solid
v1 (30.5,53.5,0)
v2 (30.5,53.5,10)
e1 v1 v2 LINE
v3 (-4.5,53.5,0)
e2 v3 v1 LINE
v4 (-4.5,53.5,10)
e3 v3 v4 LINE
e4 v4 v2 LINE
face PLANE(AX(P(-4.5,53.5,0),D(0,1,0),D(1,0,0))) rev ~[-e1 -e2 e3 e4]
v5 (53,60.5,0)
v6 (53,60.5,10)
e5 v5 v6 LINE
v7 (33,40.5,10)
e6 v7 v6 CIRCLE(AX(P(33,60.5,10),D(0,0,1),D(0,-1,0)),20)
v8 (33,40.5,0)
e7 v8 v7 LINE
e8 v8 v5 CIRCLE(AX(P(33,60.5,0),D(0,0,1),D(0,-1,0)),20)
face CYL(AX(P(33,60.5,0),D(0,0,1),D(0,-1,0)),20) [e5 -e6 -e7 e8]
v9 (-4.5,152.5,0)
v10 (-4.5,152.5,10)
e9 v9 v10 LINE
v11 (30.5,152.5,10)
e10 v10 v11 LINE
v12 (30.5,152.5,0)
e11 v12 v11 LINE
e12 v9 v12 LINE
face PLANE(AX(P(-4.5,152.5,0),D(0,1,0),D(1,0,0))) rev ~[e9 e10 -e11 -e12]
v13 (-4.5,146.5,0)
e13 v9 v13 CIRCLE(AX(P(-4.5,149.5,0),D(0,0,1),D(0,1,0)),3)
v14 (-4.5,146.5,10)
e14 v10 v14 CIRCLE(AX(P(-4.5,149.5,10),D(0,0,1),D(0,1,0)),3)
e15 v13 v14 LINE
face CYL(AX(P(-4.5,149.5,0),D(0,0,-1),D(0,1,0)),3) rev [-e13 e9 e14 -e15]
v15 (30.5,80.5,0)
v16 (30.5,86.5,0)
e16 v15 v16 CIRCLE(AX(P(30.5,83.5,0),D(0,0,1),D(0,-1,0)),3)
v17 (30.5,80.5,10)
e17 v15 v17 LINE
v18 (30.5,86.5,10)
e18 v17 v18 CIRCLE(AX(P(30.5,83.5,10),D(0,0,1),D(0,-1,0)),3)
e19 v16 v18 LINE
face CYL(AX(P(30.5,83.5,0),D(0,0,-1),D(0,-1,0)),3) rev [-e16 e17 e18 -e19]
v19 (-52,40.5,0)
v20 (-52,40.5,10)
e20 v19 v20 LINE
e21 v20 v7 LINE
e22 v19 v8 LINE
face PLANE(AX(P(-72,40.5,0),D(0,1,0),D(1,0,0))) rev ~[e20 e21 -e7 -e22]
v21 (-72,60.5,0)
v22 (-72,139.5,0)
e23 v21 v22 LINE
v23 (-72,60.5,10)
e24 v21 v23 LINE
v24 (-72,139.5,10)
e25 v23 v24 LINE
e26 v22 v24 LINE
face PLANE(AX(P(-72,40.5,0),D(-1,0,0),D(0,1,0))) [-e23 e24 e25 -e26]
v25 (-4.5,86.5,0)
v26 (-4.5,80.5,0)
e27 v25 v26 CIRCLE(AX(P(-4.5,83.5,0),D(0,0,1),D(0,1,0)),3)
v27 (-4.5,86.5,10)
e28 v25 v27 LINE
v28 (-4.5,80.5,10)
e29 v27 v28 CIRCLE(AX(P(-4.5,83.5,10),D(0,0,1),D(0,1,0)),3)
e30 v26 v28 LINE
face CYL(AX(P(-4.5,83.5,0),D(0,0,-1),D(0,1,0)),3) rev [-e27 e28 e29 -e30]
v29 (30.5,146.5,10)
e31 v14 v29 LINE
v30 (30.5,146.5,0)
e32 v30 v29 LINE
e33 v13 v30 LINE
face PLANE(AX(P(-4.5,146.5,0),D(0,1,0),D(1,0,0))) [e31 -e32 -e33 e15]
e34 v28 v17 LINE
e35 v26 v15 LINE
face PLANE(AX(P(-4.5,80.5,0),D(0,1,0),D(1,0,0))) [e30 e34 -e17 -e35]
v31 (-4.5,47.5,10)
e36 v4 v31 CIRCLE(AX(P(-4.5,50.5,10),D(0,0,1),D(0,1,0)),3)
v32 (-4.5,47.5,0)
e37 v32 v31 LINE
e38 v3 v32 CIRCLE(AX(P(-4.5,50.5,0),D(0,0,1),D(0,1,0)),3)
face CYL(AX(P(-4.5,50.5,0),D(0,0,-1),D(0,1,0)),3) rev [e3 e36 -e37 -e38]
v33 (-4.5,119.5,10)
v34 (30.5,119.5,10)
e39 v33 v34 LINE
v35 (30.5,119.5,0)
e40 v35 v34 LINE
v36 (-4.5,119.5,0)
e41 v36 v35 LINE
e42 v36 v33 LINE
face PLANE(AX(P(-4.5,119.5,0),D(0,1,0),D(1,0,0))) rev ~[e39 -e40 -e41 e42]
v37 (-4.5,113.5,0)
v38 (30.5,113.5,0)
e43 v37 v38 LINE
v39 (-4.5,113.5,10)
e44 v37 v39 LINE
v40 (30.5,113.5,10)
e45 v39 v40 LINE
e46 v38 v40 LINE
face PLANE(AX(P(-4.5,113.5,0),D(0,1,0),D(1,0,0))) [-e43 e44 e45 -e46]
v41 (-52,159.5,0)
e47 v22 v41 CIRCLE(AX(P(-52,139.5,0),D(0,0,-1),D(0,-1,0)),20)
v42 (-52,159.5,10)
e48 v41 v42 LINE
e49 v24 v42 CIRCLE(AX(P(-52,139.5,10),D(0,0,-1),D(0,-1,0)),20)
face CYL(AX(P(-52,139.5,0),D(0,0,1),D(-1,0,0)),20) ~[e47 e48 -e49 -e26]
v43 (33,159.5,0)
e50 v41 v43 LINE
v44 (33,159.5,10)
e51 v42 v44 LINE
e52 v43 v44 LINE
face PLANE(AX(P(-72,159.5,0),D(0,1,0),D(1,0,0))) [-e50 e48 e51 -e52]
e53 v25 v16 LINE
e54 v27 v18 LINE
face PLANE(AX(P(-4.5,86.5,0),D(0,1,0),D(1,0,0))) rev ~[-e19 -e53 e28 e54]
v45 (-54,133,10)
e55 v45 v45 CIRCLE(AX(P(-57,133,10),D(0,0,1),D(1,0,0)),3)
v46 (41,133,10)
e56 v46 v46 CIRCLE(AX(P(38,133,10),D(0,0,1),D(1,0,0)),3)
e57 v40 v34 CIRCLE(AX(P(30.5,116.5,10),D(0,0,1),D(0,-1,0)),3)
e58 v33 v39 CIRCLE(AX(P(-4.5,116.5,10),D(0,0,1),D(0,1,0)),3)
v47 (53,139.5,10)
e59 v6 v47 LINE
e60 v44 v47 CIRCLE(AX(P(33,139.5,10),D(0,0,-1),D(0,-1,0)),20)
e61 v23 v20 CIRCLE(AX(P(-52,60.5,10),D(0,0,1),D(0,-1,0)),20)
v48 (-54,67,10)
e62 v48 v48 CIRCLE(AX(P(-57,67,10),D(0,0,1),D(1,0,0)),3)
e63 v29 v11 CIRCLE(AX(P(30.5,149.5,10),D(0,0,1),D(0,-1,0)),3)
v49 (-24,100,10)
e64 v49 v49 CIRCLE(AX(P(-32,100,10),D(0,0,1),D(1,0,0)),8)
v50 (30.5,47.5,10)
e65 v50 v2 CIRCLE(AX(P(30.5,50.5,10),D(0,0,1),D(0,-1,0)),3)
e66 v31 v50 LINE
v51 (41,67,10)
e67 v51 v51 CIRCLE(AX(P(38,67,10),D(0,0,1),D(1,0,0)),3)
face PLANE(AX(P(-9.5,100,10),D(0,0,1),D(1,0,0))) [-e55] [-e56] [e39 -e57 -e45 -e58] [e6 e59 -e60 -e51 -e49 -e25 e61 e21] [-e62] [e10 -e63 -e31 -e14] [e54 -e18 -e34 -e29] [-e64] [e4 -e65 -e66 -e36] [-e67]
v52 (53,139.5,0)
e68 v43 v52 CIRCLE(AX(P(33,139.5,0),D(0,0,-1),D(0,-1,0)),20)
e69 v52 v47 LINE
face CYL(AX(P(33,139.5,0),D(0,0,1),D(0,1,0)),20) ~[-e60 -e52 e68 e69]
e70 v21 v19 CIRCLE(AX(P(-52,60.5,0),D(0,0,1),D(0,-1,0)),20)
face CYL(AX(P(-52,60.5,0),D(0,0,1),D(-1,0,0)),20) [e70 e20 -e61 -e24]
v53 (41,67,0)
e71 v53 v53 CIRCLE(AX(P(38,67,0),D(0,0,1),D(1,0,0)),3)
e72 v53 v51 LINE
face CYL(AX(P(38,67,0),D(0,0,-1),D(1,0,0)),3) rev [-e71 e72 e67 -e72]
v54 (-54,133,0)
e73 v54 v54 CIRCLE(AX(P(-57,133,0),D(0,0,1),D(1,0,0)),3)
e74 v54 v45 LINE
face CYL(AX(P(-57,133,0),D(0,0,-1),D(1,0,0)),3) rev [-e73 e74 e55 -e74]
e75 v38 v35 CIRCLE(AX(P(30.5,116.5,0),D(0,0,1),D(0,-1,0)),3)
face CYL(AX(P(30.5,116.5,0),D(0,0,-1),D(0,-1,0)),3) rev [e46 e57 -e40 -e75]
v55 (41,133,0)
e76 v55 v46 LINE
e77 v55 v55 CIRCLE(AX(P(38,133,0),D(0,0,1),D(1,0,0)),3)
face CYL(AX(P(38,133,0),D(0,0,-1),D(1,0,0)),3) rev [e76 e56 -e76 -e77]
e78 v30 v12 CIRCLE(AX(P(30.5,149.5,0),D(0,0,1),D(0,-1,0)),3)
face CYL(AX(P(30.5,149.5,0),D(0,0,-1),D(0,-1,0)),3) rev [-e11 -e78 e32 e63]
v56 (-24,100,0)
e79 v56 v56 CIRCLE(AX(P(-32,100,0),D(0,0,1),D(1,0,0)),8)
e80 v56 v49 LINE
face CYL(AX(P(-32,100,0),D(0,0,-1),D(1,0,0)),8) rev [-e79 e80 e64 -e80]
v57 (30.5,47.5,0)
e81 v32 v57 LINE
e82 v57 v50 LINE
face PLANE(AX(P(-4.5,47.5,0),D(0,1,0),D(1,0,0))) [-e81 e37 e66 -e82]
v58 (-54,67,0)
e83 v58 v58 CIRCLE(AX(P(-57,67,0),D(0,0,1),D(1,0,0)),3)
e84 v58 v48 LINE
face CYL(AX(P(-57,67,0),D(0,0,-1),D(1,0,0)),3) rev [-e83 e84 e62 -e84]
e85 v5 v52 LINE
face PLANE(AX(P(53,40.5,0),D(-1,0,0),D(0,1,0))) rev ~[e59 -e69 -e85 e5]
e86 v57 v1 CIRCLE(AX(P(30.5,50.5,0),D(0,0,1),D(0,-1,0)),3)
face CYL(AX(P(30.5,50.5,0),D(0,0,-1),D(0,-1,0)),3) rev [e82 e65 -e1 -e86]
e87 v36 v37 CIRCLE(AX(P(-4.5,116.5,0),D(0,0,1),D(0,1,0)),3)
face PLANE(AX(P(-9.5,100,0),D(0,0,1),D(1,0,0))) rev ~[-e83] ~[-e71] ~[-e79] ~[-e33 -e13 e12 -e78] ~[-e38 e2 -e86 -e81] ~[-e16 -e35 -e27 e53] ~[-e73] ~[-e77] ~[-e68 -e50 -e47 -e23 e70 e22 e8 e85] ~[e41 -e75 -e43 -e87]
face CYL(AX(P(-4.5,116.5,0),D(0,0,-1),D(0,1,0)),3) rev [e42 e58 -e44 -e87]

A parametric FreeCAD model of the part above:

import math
import FreeCAD as App
import Part
import Sketcher

V = App.Vector


def edges_at(feature, points):
    """Names of the edges that pass closest to the given points."""
    edges = feature.Shape.Edges
    near = lambda p: min(range(len(edges)), key=lambda i: edges[i].distToShape(Part.Vertex(*p))[0])
    return sorted({f"Edge{near(p) + 1}" for p in points})


def add_polygon(sketch, points):
    """Adds a closed chain of lines whose ends are joined by coincident constraints."""
    first, n = sketch.GeometryCount, len(points)
    for a, b in zip(points, points[1:] + points[:1]):
        sketch.addGeometry(Part.LineSegment(App.Vector(*a, 0), App.Vector(*b, 0)), False)
    for i in range(n):
        sketch.addConstraint(Sketcher.Constraint("Coincident", first + i, 2, first + (i + 1) % n, 1))

doc = App.newDocument("Part")
body = doc.addObject("PartDesign::Body", "Body")

sketch1 = doc.addObject("Sketcher::SketchObject", "Sketch")
body.addObject(sketch1)
sketch1.AttachmentSupport = (doc.XY_Plane, [""])
sketch1.MapMode = "FlatFace"
add_polygon(sketch1, [(-72, 159.5), (-72, 40.5), (53, 40.5), (53, 159.5)])
sketch1.addGeometry(Part.Circle(V(-57, 67, 0), V(0, 0, 1), 3), False)
sketch1.addGeometry(Part.ArcOfCircle(Part.Circle(V(-4.5, 50.5, 0), V(0, 0, 1), 3), math.radians(90), math.radians(270)), False)
sketch1.addGeometry(Part.LineSegment(V(-4.5, 53.5, 0), V(30.5, 53.5, 0)), False)
sketch1.addGeometry(Part.ArcOfCircle(Part.Circle(V(30.5, 50.5, 0), V(0, 0, 1), 3), math.radians(-90), math.radians(90)), False)
sketch1.addGeometry(Part.LineSegment(V(30.5, 47.5, 0), V(-4.5, 47.5, 0)), False)
sketch1.addGeometry(Part.Circle(V(38, 67, 0), V(0, 0, 1), 3), False)
sketch1.addGeometry(Part.ArcOfCircle(Part.Circle(V(-4.5, 83.5, 0), V(0, 0, 1), 3), math.radians(90), math.radians(270)), False)
sketch1.addGeometry(Part.LineSegment(V(-4.5, 86.5, 0), V(30.5, 86.5, 0)), False)
sketch1.addGeometry(Part.ArcOfCircle(Part.Circle(V(30.5, 83.5, 0), V(0, 0, 1), 3), math.radians(-90), math.radians(90)), False)
sketch1.addGeometry(Part.LineSegment(V(30.5, 80.5, 0), V(-4.5, 80.5, 0)), False)
sketch1.addGeometry(Part.Circle(V(-32, 100, 0), V(0, 0, 1), 8), False)
sketch1.addGeometry(Part.Circle(V(-57, 133, 0), V(0, 0, 1), 3), False)
sketch1.addGeometry(Part.ArcOfCircle(Part.Circle(V(-4.5, 116.5, 0), V(0, 0, 1), 3), math.radians(90), math.radians(270)), False)
sketch1.addGeometry(Part.LineSegment(V(-4.5, 119.5, 0), V(30.5, 119.5, 0)), False)
sketch1.addGeometry(Part.ArcOfCircle(Part.Circle(V(30.5, 116.5, 0), V(0, 0, 1), 3), math.radians(-90), math.radians(90)), False)
sketch1.addGeometry(Part.LineSegment(V(30.5, 113.5, 0), V(-4.5, 113.5, 0)), False)
sketch1.addGeometry(Part.ArcOfCircle(Part.Circle(V(-4.5, 149.5, 0), V(0, 0, 1), 3), math.radians(90), math.radians(270)), False)
sketch1.addGeometry(Part.LineSegment(V(-4.5, 152.5, 0), V(30.5, 152.5, 0)), False)
sketch1.addGeometry(Part.ArcOfCircle(Part.Circle(V(30.5, 149.5, 0), V(0, 0, 1), 3), math.radians(-90), math.radians(90)), False)
sketch1.addGeometry(Part.LineSegment(V(30.5, 146.5, 0), V(-4.5, 146.5, 0)), False)
sketch1.addGeometry(Part.Circle(V(38, 133, 0), V(0, 0, 1), 3), False)
sketch1.addConstraint([
    Sketcher.Constraint("Tangent", 5, 1, 6, 1),
    Sketcher.Constraint("Tangent", 6, 2, 7, 2),
    Sketcher.Constraint("Tangent", 7, 1, 8, 1),
    Sketcher.Constraint("Tangent", 8, 2, 5, 2),
    Sketcher.Constraint("Tangent", 10, 1, 11, 1),
    Sketcher.Constraint("Tangent", 11, 2, 12, 2),
    Sketcher.Constraint("Tangent", 12, 1, 13, 1),
    Sketcher.Constraint("Tangent", 13, 2, 10, 2),
    Sketcher.Constraint("Tangent", 16, 1, 17, 1),
    Sketcher.Constraint("Tangent", 17, 2, 18, 2),
    Sketcher.Constraint("Tangent", 18, 1, 19, 1),
    Sketcher.Constraint("Tangent", 19, 2, 16, 2),
    Sketcher.Constraint("Tangent", 20, 1, 21, 1),
    Sketcher.Constraint("Tangent", 21, 2, 22, 2),
    Sketcher.Constraint("Tangent", 22, 1, 23, 1),
    Sketcher.Constraint("Tangent", 23, 2, 20, 2),
    Sketcher.Constraint("Vertical", 0),
    Sketcher.Constraint("Horizontal", 1),
    Sketcher.Constraint("Vertical", 2),
    Sketcher.Constraint("Horizontal", 3),
    Sketcher.Constraint("Horizontal", 6),
    Sketcher.Constraint("Horizontal", 8),
    Sketcher.Constraint("Horizontal", 11),
    Sketcher.Constraint("Horizontal", 13),
    Sketcher.Constraint("Horizontal", 17),
    Sketcher.Constraint("Horizontal", 19),
    Sketcher.Constraint("Horizontal", 21),
    Sketcher.Constraint("Horizontal", 23),
    Sketcher.Constraint("Equal", 4, 5),
    Sketcher.Constraint("Equal", 7, 9),
    Sketcher.Constraint("Equal", 9, 10),
    Sketcher.Constraint("Equal", 12, 15),
    Sketcher.Constraint("Equal", 15, 16),
    Sketcher.Constraint("Equal", 18, 20),
    Sketcher.Constraint("Equal", 22, 24),
    Sketcher.Constraint("Horizontal", 4, 3, 9, 3),
    Sketcher.Constraint("Horizontal", 15, 3, 24, 3),
    Sketcher.Constraint("Vertical", 5, 3, 10, 3),
    Sketcher.Constraint("Vertical", 7, 3, 12, 3),
    Sketcher.Constraint("Vertical", 4, 3, 15, 3),
    Sketcher.Constraint("Vertical", 10, 3, 16, 3),
    Sketcher.Constraint("Vertical", 12, 3, 18, 3),
    Sketcher.Constraint("Vertical", 16, 3, 20, 3),
    Sketcher.Constraint("Vertical", 18, 3, 22, 3),
    Sketcher.Constraint("Vertical", 9, 3, 24, 3),
    Sketcher.Constraint("Diameter", 4, 6.0),
    Sketcher.Constraint("Diameter", 14, 16.0),
    Sketcher.Constraint("DistanceX", 1, 1, 1, 2, 125.0),
    Sketcher.Constraint("DistanceX", 6, 1, 6, 2, 35.0),
    Sketcher.Constraint("DistanceY", 0, 2, 0, 1, 119.0),
    Sketcher.Constraint("DistanceX", 4, 3, -1, 1, 57.0),
    Sketcher.Constraint("DistanceY", -1, 1, 4, 3, 67.0),
    Sketcher.Constraint("DistanceX", -1, 1, 9, 3, 38.0),
    Sketcher.Constraint("DistanceX", 14, 3, -1, 1, 32.0),
    Sketcher.Constraint("DistanceY", -1, 1, 14, 3, 100.0),
    Sketcher.Constraint("DistanceY", -1, 1, 15, 3, 133.0),
    Sketcher.Constraint("DistanceX", 0, 2, -1, 1, 72.0),
    Sketcher.Constraint("DistanceY", 5, 3, 10, 3, 33.0),
    Sketcher.Constraint("DistanceY", 10, 3, 16, 3, 33.0),
    Sketcher.Constraint("DistanceY", 16, 3, 20, 3, 33.0),
    Sketcher.Constraint("DistanceY", 0, 2, 5, 3, 10.0),
    Sketcher.Constraint("DistanceX", 5, 3, -1, 1, 4.5),
    Sketcher.Constraint("DistanceY", -1, 1, 5, 3, 50.5),
])
pad1 = doc.addObject("PartDesign::Pad", "Pad")
body.addObject(pad1)
pad1.Profile = sketch1
pad1.Length = 10
doc.recompute()

fillet = doc.addObject("PartDesign::Fillet", "Fillet")
body.addObject(fillet)
fillet.Base = (pad1, edges_at(pad1, [
    (53, 40.5, 5),
    (53, 159.5, 5),
    (-72, 40.5, 5),
    (-72, 159.5, 5),
]))
fillet.Radius = 20

doc.recompute()
